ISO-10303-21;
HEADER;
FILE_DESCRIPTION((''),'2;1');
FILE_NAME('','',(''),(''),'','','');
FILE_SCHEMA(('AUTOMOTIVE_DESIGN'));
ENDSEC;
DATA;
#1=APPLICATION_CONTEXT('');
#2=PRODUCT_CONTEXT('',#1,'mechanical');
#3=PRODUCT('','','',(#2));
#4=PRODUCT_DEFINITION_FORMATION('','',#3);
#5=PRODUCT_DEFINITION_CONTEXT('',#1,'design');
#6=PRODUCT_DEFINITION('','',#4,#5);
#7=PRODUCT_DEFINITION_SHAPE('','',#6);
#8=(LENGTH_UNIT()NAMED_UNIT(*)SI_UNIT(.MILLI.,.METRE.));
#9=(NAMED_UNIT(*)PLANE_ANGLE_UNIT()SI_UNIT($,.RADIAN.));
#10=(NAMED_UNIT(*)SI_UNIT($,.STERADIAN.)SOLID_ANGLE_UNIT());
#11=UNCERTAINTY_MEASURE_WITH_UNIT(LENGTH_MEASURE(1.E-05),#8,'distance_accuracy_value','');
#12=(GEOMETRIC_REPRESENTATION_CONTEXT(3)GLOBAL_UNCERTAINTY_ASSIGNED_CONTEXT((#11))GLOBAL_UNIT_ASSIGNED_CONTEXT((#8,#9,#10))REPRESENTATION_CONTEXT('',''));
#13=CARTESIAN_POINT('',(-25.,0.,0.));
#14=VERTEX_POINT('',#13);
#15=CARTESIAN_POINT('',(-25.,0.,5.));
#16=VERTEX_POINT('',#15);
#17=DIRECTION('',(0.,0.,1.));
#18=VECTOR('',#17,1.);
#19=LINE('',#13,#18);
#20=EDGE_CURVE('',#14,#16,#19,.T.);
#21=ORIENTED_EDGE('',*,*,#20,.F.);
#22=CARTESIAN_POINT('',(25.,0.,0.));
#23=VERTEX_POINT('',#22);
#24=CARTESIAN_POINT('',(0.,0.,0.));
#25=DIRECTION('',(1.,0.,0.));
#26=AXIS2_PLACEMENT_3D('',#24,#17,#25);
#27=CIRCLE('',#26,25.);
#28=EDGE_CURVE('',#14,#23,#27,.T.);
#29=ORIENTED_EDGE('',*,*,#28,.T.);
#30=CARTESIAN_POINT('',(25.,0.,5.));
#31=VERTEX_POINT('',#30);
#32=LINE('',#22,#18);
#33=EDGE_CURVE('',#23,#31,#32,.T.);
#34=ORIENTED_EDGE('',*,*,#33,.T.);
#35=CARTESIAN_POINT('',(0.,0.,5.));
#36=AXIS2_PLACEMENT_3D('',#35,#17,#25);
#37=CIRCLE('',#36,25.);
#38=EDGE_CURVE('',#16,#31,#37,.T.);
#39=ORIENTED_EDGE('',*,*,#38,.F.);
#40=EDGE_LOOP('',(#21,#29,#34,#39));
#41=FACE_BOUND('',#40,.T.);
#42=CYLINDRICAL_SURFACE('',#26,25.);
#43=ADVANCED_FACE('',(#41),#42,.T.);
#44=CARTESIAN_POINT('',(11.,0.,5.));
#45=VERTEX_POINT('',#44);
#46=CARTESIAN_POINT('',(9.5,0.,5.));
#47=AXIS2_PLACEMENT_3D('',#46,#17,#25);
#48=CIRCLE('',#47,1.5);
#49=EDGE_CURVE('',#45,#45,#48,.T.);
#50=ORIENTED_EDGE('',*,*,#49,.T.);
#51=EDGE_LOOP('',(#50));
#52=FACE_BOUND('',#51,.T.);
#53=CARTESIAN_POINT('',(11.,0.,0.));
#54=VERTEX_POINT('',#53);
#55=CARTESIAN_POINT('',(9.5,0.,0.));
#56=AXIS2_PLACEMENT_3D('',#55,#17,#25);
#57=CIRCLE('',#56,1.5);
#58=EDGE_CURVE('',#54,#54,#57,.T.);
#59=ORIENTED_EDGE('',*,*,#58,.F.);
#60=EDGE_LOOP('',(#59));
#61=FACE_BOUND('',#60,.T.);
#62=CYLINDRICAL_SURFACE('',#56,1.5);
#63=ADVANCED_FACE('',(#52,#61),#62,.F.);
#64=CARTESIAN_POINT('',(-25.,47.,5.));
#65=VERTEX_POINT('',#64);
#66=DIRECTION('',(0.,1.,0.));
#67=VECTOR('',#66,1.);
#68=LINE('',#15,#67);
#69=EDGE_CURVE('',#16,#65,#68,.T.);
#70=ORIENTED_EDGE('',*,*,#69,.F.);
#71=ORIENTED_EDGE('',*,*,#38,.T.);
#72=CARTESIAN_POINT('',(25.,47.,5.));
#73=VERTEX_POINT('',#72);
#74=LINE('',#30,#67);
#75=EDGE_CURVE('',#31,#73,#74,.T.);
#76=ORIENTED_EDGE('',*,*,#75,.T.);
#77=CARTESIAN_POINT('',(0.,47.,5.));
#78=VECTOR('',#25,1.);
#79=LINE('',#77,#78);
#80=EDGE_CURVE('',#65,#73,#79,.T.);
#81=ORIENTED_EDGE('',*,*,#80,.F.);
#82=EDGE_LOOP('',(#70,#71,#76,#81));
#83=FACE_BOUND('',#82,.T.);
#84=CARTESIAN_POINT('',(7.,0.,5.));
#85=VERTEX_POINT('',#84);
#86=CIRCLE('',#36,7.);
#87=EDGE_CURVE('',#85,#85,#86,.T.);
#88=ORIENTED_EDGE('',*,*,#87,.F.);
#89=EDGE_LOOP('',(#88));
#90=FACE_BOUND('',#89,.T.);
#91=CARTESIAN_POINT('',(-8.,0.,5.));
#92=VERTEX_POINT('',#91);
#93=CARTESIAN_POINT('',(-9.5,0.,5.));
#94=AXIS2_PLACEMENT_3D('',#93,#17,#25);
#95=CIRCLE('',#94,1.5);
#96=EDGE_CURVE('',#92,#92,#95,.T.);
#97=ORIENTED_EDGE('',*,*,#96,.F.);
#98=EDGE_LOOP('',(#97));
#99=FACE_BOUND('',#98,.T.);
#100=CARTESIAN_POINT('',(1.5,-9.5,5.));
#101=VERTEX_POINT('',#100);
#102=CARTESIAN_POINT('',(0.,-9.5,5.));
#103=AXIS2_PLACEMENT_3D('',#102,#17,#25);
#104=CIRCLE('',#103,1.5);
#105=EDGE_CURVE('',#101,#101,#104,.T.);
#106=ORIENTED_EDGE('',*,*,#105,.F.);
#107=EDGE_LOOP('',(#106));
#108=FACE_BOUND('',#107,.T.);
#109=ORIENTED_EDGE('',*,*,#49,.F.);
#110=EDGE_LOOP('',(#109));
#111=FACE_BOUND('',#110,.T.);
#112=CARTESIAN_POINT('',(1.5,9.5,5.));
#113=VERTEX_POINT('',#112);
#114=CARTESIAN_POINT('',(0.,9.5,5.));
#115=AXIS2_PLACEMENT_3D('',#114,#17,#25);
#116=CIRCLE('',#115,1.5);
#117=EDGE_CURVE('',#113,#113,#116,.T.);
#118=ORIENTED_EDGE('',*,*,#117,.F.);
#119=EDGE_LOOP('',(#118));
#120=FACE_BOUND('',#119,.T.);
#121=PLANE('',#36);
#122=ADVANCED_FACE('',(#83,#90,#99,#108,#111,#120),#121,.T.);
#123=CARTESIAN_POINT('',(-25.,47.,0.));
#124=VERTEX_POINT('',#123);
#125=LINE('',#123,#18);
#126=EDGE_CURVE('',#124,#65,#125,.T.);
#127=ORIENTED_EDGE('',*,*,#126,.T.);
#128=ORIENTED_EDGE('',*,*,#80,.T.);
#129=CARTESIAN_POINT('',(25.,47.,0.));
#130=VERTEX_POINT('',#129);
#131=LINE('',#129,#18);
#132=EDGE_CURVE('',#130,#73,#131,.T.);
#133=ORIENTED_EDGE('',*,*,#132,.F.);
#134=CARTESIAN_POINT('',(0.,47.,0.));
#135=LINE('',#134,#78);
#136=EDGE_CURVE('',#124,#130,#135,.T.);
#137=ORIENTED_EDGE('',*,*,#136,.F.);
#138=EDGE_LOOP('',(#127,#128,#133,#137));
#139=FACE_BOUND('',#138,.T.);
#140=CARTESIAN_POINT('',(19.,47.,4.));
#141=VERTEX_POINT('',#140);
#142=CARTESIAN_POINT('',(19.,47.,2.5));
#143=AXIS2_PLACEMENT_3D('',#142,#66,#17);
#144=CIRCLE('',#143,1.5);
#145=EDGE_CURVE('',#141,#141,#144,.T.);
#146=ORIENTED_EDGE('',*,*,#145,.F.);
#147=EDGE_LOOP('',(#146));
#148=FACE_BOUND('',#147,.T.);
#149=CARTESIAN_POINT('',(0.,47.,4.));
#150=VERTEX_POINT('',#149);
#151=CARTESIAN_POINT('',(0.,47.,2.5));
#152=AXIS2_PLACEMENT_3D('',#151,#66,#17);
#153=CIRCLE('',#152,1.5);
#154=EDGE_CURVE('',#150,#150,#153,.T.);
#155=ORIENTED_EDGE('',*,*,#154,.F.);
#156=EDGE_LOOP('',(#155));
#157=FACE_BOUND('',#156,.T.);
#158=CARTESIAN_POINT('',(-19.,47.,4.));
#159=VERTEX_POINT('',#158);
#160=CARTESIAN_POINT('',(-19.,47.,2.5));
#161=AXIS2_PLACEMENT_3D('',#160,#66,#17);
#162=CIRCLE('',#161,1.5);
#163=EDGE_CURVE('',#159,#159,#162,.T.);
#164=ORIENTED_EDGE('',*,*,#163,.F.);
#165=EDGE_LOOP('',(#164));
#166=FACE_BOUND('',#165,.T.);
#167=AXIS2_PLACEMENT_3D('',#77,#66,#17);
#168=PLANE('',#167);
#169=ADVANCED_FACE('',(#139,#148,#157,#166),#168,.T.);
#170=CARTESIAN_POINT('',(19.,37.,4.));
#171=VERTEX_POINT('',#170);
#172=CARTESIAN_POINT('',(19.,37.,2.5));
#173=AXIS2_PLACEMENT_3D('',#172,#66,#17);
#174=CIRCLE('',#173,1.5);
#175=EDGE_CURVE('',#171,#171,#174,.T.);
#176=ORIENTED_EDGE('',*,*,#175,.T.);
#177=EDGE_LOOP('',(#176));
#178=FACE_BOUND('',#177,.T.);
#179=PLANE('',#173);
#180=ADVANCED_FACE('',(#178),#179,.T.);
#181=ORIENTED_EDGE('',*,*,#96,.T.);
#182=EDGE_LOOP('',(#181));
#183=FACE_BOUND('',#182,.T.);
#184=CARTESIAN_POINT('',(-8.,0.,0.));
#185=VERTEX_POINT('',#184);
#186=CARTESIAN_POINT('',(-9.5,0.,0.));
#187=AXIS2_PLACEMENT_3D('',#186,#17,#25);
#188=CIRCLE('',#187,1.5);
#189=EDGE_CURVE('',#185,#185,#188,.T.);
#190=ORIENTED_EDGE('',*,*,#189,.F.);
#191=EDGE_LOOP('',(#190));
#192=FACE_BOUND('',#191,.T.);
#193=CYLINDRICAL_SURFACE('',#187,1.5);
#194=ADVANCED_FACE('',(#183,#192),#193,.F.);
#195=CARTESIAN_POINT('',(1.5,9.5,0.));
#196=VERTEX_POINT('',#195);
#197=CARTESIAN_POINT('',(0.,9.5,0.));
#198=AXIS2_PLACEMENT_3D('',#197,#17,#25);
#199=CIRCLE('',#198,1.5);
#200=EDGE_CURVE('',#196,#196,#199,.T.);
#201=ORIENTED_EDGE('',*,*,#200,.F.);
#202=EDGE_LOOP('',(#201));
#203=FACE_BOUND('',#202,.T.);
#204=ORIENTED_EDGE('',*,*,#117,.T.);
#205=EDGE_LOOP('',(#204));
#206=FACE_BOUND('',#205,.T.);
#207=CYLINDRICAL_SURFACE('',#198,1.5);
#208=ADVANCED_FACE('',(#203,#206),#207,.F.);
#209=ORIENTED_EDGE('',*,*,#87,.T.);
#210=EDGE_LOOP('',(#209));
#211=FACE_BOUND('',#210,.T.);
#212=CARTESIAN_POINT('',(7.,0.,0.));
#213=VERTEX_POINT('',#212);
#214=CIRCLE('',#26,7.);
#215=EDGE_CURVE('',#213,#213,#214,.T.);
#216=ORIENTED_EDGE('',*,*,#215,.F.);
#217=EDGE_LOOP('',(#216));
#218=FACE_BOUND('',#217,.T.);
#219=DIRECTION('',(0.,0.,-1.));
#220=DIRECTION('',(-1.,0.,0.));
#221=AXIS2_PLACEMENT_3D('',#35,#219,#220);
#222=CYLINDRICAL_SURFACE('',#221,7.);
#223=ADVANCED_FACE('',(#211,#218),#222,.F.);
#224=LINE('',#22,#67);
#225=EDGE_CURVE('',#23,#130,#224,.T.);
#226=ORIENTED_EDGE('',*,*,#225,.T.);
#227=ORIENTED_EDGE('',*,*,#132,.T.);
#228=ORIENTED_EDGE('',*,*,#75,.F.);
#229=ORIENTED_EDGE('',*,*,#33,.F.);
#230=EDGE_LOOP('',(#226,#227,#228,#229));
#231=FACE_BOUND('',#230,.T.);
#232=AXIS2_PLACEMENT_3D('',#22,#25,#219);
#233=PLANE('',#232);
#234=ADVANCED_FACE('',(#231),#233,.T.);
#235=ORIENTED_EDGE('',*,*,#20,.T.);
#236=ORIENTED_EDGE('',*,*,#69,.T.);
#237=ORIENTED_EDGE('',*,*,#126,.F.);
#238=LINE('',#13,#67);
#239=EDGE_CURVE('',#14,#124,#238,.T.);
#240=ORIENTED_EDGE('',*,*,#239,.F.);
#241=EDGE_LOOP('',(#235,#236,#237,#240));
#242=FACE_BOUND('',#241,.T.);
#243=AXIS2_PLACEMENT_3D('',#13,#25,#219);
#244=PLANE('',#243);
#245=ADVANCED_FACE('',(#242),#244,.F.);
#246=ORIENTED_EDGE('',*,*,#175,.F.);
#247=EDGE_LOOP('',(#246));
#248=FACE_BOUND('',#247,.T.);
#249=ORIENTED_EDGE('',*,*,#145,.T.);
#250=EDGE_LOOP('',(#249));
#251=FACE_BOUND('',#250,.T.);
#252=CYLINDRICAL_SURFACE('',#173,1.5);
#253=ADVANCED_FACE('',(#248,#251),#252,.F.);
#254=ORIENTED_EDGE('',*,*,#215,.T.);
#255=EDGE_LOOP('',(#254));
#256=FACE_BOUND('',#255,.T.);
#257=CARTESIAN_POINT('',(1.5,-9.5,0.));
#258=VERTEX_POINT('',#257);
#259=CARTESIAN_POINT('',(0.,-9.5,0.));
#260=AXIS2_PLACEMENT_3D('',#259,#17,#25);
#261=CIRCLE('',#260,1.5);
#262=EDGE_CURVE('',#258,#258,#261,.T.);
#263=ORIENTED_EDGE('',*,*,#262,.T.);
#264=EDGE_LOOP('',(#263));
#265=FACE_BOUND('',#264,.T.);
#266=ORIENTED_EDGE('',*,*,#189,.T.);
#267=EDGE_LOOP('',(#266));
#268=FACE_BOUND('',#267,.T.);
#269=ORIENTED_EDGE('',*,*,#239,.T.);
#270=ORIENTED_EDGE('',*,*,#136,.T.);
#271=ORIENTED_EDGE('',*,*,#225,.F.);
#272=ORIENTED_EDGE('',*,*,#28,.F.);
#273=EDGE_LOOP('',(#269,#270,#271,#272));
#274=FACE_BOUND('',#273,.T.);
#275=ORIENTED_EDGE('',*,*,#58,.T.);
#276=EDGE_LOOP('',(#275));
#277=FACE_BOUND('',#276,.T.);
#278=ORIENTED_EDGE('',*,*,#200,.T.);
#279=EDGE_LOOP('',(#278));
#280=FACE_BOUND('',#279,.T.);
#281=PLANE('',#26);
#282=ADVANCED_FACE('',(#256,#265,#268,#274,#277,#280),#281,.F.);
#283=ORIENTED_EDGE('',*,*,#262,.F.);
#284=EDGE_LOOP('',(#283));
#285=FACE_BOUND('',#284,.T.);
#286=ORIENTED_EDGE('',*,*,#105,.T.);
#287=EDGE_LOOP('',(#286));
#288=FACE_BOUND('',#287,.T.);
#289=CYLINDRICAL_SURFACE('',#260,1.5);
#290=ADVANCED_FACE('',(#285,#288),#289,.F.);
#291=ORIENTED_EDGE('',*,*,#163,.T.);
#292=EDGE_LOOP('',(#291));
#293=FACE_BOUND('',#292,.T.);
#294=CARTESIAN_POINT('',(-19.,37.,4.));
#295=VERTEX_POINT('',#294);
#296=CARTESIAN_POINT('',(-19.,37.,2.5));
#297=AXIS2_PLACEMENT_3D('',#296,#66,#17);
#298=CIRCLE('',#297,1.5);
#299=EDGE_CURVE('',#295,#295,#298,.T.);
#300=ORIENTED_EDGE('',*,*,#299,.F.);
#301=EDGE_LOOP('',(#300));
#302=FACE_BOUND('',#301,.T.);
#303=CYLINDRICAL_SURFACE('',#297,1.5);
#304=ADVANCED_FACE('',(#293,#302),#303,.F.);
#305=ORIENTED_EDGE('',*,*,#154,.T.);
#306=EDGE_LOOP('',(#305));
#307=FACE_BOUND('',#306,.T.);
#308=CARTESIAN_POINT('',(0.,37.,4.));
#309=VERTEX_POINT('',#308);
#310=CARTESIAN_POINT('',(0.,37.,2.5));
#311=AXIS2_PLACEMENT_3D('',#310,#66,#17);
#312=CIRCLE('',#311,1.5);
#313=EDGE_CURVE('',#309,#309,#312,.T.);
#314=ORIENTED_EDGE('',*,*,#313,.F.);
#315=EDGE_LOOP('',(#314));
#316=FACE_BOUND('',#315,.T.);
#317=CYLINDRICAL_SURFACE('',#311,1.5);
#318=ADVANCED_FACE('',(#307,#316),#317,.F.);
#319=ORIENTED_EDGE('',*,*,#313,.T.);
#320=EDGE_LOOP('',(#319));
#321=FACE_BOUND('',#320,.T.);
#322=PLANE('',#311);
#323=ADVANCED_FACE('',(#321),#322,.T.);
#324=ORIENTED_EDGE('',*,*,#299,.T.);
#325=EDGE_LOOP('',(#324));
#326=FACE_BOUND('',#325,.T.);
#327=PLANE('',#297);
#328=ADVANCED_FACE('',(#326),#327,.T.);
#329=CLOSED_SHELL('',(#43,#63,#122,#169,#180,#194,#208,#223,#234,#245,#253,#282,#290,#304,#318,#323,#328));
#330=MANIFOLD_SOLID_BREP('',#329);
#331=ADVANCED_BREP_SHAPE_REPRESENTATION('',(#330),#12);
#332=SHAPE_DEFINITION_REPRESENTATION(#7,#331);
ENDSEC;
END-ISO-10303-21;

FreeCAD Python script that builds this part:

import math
import FreeCAD as App
import Part
import Sketcher

V = App.Vector

doc = App.newDocument("Part")
body = doc.addObject("PartDesign::Body", "Body")

sketch1 = body.newObject("Sketcher::SketchObject", "Sketch")
sketch1.AttachmentSupport = (doc.getObject("XY_Plane"), [""])
sketch1.MapMode = "FlatFace"
sketch1.addGeometry(Part.LineSegment(V(-47, 47, 0), V(-47, -47, 0)), False)
sketch1.addGeometry(Part.LineSegment(V(-47, -47, 0), V(47, -47, 0)), False)
sketch1.addGeometry(Part.LineSegment(V(47, -47, 0), V(47, 47, 0)), False)
sketch1.addGeometry(Part.LineSegment(V(47, 47, 0), V(-47, 47, 0)), False)
sketch1.addGeometry(Part.Circle(V(0, 0, 0), V(0, 0, 1), 7), False)
sketch1.addConstraint(Sketcher.Constraint("Coincident", 0, 2, 1, 1))
sketch1.addConstraint(Sketcher.Constraint("Coincident", 1, 2, 2, 1))
sketch1.addConstraint(Sketcher.Constraint("Coincident", 2, 2, 3, 1))
sketch1.addConstraint(Sketcher.Constraint("Coincident", 3, 2, 0, 1))
sketch1.addConstraint(Sketcher.Constraint("Vertical", 0))
sketch1.addConstraint(Sketcher.Constraint("Horizontal", 1))
sketch1.addConstraint(Sketcher.Constraint("Vertical", 2))
sketch1.addConstraint(Sketcher.Constraint("Horizontal", 3))
sketch1.addConstraint(Sketcher.Constraint("Coincident", 4, 3, -1, 1))
sketch1.addConstraint(Sketcher.Constraint("Diameter", 4, 14.0))
sketch1.addConstraint(Sketcher.Constraint("DistanceX", 1, 1, 1, 2, 94.0))
sketch1.addConstraint(Sketcher.Constraint("DistanceX", 0, 2, -1, 1, 47.0))
sketch1.addConstraint(Sketcher.Constraint("DistanceY", -1, 1, 2, 2, 47.0))
sketch1.addConstraint(Sketcher.Constraint("DistanceY", 0, 2, 0, 1, 93.80781))
pad1 = body.newObject("PartDesign::Pad", "Pad")
pad1.Profile = sketch1
pad1.Length = 5

sketch2 = body.newObject("Sketcher::SketchObject", "Sketch001")
sketch2.AttachmentSupport = (doc.getObject("XY_Plane"), [""])
sketch2.MapMode = "FlatFace"
sketch2.AttachmentOffset = App.Placement(V(0, 0, 5), App.Rotation())
sketch2.addGeometry(Part.Circle(V(9.5, 0, 0), V(0, 0, 1), 1.5), False)
sketch2.addGeometry(Part.LineSegment(V(25, 47, 0), V(25, 0, 0)), False)
sketch2.addGeometry(Part.ArcOfCircle(Part.Circle(V(0, 0, 0), V(0, 0, 1), 25), math.radians(180), math.radians(360)), False)
sketch2.addGeometry(Part.LineSegment(V(-25, 0, 0), V(-25, 47, 0)), False)
sketch2.addGeometry(Part.LineSegment(V(-25, 47, 0), V(-47, 47, 0)), False)
sketch2.addGeometry(Part.LineSegment(V(-47, 47, 0), V(-47, -46.8, 0)), False)
sketch2.addGeometry(Part.LineSegment(V(-47, -46.8, 0), V(47, -46.8, 0)), False)
sketch2.addGeometry(Part.LineSegment(V(47, -46.8, 0), V(47, 47, 0)), False)
sketch2.addGeometry(Part.LineSegment(V(47, 47, 0), V(25, 47, 0)), False)
sketch2.addGeometry(Part.Circle(V(-9.5, 0, 0), V(0, 0, 1), 1.5), False)
sketch2.addGeometry(Part.Circle(V(0, 9.5, 0), V(0, 0, 1), 1.5), False)
sketch2.addGeometry(Part.Circle(V(0, -9.5, 0), V(0, 0, 1), 1.5), False)
sketch2.addConstraint(Sketcher.Constraint("Tangent", 1, 2, 2, 2))
sketch2.addConstraint(Sketcher.Constraint("Tangent", 2, 1, 3, 1))
sketch2.addConstraint(Sketcher.Constraint("Coincident", 3, 2, 4, 1))
sketch2.addConstraint(Sketcher.Constraint("Coincident", 4, 2, 5, 1))
sketch2.addConstraint(Sketcher.Constraint("Coincident", 5, 2, 6, 1))
sketch2.addConstraint(Sketcher.Constraint("Coincident", 6, 2, 7, 1))
sketch2.addConstraint(Sketcher.Constraint("Coincident", 7, 2, 8, 1))
sketch2.addConstraint(Sketcher.Constraint("Coincident", 8, 2, 1, 1))
sketch2.addConstraint(Sketcher.Constraint("Vertical", 1))
sketch2.addConstraint(Sketcher.Constraint("Vertical", 3))
sketch2.addConstraint(Sketcher.Constraint("Horizontal", 4))
sketch2.addConstraint(Sketcher.Constraint("Vertical", 5))
sketch2.addConstraint(Sketcher.Constraint("Horizontal", 6))
sketch2.addConstraint(Sketcher.Constraint("Vertical", 7))
sketch2.addConstraint(Sketcher.Constraint("Horizontal", 8))
sketch2.addConstraint(Sketcher.Constraint("Coincident", 2, 3, -1, 1))
sketch2.addConstraint(Sketcher.Constraint("Equal", 0, 9))
sketch2.addConstraint(Sketcher.Constraint("Equal", 9, 10))
sketch2.addConstraint(Sketcher.Constraint("Equal", 10, 11))
sketch2.addConstraint(Sketcher.Constraint("Symmetric", 0, 3, 9, 3, -1, 1))
sketch2.addConstraint(Sketcher.Constraint("Symmetric", 10, 3, 11, 3, -1, 1))
sketch2.addConstraint(Sketcher.Constraint("Symmetric", 4, 2, 7, 2, -2))
sketch2.addConstraint(Sketcher.Constraint("PointOnObject", 0, 3, -1))
sketch2.addConstraint(Sketcher.Constraint("PointOnObject", 10, 3, -2))
sketch2.addConstraint(Sketcher.Constraint("Diameter", 0, 3.0))
sketch2.addConstraint(Sketcher.Constraint("Radius", 2, 25.0))
sketch2.addConstraint(Sketcher.Constraint("DistanceX", 4, 2, 4, 1, 22.0))
sketch2.addConstraint(Sketcher.Constraint("DistanceY", 1, 2, 1, 1, 47.0))
sketch2.addConstraint(Sketcher.Constraint("DistanceX", 9, 3, 0, 3, 19.0))
sketch2.addConstraint(Sketcher.Constraint("DistanceY", 11, 3, 10, 3, 19.0))
sketch2.addConstraint(Sketcher.Constraint("DistanceY", 5, 2, 5, 1, 93.80781))
pocket1 = body.newObject("PartDesign::Pocket", "Pocket")
pocket1.Profile = sketch2
pocket1.Type = "ThroughAll"

sketch3 = body.newObject("Sketcher::SketchObject", "Sketch002")
sketch3.AttachmentSupport = (doc.getObject("XZ_Plane"), [""])
sketch3.MapMode = "FlatFace"
sketch3.AttachmentOffset = App.Placement(V(0, 0, -47), App.Rotation())
sketch3.addGeometry(Part.Circle(V(0, 2.5, 0), V(0, 0, 1), 1.5), False)
sketch3.addGeometry(Part.Circle(V(-19, 2.5, 0), V(0, 0, 1), 1.5), False)
sketch3.addGeometry(Part.Circle(V(19, 2.5, 0), V(0, 0, 1), 1.5), False)
sketch3.addConstraint(Sketcher.Constraint("Equal", 0, 1))
sketch3.addConstraint(Sketcher.Constraint("Equal", 1, 2))
sketch3.addConstraint(Sketcher.Constraint("Symmetric", 1, 3, 2, 3, -2))
sketch3.addConstraint(Sketcher.Constraint("PointOnObject", 0, 3, -2))
sketch3.addConstraint(Sketcher.Constraint("Horizontal", 0, 3, 1, 3))
sketch3.addConstraint(Sketcher.Constraint("Diameter", 0, 3.0))
sketch3.addConstraint(Sketcher.Constraint("DistanceX", 1, 3, -1, 1, 19.0))
sketch3.addConstraint(Sketcher.Constraint("DistanceY", -1, 1, 0, 3, 2.5))
pocket2 = body.newObject("PartDesign::Pocket", "Pocket001")
pocket2.Profile = sketch3
pocket2.Length = 10
pocket2.Reversed = True

doc.recompute()
